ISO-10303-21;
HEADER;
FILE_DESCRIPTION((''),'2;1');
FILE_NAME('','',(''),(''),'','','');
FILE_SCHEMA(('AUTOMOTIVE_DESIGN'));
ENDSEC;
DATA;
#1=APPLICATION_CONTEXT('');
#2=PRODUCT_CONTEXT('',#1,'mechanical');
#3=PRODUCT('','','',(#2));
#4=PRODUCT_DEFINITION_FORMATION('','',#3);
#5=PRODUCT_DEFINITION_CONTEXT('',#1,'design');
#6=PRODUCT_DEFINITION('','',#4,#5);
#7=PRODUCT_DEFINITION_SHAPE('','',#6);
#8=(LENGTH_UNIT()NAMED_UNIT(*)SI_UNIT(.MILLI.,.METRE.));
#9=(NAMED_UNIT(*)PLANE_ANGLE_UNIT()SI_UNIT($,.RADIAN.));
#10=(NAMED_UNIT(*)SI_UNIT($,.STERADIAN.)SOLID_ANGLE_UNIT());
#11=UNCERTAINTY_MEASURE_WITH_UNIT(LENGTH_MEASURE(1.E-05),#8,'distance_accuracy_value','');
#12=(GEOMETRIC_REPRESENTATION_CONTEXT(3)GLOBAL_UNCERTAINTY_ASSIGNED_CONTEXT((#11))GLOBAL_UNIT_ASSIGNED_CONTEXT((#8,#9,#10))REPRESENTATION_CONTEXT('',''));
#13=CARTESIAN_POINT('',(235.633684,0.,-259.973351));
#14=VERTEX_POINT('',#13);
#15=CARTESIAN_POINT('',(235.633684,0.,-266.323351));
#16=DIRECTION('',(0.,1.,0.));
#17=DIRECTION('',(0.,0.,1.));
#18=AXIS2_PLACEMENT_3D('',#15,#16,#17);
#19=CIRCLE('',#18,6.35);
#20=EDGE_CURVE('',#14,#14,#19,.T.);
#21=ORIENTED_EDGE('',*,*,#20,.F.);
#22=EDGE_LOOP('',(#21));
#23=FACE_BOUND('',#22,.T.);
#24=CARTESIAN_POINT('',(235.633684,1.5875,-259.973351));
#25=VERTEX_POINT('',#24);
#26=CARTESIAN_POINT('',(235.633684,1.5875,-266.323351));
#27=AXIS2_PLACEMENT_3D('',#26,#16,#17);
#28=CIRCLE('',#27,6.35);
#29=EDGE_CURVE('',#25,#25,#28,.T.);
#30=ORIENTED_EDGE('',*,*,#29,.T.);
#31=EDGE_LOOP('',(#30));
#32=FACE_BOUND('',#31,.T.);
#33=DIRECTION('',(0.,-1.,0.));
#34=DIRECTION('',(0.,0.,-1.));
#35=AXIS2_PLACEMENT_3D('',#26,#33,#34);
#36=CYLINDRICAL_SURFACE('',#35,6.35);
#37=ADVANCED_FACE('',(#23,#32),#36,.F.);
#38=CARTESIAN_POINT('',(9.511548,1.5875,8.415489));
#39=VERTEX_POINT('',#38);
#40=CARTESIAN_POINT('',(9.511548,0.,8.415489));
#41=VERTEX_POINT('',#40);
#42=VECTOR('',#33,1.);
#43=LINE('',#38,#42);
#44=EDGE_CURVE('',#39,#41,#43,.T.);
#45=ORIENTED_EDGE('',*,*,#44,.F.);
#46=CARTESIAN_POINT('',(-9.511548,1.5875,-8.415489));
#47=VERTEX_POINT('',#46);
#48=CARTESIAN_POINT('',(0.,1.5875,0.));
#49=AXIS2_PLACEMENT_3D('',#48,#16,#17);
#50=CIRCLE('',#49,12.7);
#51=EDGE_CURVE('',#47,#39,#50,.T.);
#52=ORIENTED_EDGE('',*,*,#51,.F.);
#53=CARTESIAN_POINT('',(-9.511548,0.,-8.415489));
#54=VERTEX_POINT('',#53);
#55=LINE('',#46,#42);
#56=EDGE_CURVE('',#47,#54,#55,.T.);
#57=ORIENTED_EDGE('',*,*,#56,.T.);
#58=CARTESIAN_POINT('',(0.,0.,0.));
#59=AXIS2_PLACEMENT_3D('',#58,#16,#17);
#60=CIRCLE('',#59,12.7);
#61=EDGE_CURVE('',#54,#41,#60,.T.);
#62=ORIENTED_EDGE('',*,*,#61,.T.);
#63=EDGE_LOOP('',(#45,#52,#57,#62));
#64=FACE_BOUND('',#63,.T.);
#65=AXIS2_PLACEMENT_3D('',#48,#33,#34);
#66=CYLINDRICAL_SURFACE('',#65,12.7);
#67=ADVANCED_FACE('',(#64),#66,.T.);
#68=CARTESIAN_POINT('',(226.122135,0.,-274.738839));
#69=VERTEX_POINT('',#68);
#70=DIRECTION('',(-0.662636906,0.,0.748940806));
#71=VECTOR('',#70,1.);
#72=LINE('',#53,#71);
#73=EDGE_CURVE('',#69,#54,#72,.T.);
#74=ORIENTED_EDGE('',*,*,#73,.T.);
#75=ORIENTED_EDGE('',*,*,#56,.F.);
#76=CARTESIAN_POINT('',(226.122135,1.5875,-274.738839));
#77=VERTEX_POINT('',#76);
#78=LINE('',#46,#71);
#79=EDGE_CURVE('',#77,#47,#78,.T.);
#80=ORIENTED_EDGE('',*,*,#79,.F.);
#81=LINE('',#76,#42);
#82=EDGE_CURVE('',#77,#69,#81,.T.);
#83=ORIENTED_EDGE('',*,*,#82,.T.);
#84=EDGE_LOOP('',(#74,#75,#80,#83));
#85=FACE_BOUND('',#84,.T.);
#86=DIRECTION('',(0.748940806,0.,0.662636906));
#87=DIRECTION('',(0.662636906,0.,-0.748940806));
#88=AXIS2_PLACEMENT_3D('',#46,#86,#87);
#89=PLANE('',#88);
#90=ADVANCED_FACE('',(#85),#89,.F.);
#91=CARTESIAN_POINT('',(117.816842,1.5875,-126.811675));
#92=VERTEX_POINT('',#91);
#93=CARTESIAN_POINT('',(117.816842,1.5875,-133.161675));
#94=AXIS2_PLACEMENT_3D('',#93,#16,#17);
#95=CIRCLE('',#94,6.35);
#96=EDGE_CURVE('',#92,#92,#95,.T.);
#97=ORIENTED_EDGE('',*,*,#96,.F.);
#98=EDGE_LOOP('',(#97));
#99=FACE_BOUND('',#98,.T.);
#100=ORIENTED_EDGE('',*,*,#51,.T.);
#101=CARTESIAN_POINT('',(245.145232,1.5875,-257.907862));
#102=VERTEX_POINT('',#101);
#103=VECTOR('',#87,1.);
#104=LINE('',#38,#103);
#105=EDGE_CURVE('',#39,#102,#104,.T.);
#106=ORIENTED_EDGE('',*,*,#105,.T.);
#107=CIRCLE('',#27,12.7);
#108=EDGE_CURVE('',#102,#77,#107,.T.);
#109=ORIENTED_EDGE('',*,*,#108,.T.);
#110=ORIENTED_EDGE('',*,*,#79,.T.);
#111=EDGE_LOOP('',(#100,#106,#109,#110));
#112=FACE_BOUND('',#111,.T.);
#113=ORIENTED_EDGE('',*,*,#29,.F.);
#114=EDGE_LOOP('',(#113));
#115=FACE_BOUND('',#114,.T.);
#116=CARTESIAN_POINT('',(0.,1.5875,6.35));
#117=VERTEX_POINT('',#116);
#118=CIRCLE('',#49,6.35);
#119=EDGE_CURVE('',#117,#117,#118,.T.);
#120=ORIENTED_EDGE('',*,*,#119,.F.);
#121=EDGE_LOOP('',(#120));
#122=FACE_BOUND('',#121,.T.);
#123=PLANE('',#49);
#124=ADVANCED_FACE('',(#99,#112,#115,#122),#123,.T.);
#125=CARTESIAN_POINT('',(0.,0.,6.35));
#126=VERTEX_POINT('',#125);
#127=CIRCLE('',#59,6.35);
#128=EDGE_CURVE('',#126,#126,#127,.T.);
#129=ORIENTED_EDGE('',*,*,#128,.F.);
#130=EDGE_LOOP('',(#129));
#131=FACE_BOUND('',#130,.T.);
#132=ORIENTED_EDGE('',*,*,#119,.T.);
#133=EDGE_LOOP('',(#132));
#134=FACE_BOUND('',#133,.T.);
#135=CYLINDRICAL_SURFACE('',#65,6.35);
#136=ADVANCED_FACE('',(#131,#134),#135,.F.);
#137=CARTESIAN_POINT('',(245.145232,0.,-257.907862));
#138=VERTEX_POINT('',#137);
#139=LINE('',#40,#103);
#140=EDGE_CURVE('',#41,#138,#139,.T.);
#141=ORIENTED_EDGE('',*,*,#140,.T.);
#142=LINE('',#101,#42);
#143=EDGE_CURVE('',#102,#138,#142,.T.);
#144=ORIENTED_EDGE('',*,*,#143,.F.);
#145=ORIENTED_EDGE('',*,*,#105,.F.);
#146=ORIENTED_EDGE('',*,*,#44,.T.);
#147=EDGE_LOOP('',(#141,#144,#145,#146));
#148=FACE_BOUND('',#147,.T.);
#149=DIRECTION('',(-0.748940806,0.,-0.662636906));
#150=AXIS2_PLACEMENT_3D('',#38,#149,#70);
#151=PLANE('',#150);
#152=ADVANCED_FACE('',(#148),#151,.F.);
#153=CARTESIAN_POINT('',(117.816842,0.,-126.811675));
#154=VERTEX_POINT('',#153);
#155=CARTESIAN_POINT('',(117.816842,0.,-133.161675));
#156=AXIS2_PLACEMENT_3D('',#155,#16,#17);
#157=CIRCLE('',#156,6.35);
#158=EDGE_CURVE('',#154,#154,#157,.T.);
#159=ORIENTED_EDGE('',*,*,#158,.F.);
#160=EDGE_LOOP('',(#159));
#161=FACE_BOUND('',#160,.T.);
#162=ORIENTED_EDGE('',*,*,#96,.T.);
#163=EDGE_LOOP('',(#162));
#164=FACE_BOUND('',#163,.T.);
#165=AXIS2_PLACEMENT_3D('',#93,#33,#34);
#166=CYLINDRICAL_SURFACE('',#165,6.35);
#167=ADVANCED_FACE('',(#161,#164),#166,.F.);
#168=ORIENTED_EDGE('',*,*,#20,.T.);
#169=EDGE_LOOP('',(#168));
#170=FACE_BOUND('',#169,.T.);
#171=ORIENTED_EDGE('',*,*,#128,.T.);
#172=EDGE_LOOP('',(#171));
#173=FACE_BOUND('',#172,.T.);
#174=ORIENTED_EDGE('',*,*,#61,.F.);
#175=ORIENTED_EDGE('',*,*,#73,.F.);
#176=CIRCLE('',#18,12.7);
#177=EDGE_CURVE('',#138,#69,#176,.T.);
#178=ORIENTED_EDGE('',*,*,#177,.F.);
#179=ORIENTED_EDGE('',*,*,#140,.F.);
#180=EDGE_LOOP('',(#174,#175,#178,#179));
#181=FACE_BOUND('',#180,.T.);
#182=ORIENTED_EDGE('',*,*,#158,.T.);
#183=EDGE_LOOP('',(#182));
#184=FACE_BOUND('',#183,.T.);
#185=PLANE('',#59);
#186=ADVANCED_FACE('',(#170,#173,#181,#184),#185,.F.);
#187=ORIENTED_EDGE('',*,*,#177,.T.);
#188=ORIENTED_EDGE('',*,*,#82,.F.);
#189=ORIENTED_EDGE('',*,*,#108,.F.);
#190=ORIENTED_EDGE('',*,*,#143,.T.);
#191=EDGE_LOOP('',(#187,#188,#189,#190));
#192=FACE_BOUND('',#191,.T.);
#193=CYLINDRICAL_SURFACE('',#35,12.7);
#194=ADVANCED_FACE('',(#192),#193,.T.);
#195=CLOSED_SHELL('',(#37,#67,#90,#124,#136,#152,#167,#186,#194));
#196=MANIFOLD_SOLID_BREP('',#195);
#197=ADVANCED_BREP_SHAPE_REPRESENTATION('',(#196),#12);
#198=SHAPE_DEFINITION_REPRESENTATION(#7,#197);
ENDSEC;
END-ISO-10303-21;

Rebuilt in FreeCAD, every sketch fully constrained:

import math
import FreeCAD as App
import Part
import Sketcher
Q = App.Units.Quantity

doc = App.newDocument("Part")
params = doc.addObject("Spreadsheet::Sheet", "Params")
for row, (alias, value) in enumerate([
    ("sketch1_diameter", "0.5 in"),
    ("sketch1_radius", "0.5 in"),
    ("sketch1_length", "14 in"),
    ("pad1_length", "0.0625 in"),
], start=1):
    params.set(f"A{row}", alias)
    params.set(f"B{row}", "=" + value)
    params.setAlias(f"B{row}", alias)

body = doc.addObject("PartDesign::Body", "Body")

# Sketch on XZ plane
sketch1 = doc.addObject("Sketcher::SketchObject", "Sketch")
body.addObject(sketch1)
sketch1.AttachmentSupport = (doc.XZ_Plane, [""])
sketch1.MapMode = "FlatFace"
sketch1.addGeometry(Part.LineSegment(App.Vector(226.122135, -274.738839, 0), App.Vector(-9.511548, -8.415489, 0)), False)
sketch1.addGeometry(Part.ArcOfCircle(Part.Circle(App.Vector(0, 0, 0), App.Vector(0, 0, 1), 12.7), math.radians(41.50129), math.radians(221.50129)), False)
sketch1.addGeometry(Part.LineSegment(App.Vector(9.511548, 8.415489, 0), App.Vector(245.145232, -257.907862, 0)), False)
sketch1.addGeometry(Part.ArcOfCircle(Part.Circle(App.Vector(235.633684, -266.323351, 0), App.Vector(0, 0, 1), 12.7), math.radians(-138.49871), math.radians(41.50129)), False)
sketch1.addGeometry(Part.Circle(App.Vector(0, 0, 0), App.Vector(0, 0, 1), 6.35), False)
sketch1.addGeometry(Part.Circle(App.Vector(235.633684, -266.323351, 0), App.Vector(0, 0, 1), 6.35), False)
sketch1.addGeometry(Part.Circle(App.Vector(117.816842, -133.161675, 0), App.Vector(0, 0, 1), 6.35), False)
sketch1.addConstraint(Sketcher.Constraint("Tangent", 0, 2, 1, 2))
sketch1.addConstraint(Sketcher.Constraint("Tangent", 1, 1, 2, 1))
sketch1.addConstraint(Sketcher.Constraint("Tangent", 2, 2, 3, 2))
sketch1.addConstraint(Sketcher.Constraint("Tangent", 3, 1, 0, 1))
sketch1.addConstraint(Sketcher.Constraint("Coincident", 1, 3, -1, 1))
sketch1.addConstraint(Sketcher.Constraint("Coincident", 4, 3, -1, 1))
sketch1.addConstraint(Sketcher.Constraint("Coincident", 5, 3, 3, 3))
sketch1.addConstraint(Sketcher.Constraint("Equal", 1, 3))
sketch1.addConstraint(Sketcher.Constraint("Equal", 4, 5))
sketch1.addConstraint(Sketcher.Constraint("Equal", 5, 6))
sketch1.addConstraint(Sketcher.Constraint("Diameter", 4, Q("0.5 in")))
sketch1.addConstraint(Sketcher.Constraint("Radius", 1, Q("0.5 in")))
sketch1.addConstraint(Sketcher.Constraint("Distance", 0, Q("14 in")))
sketch1.addConstraint(Sketcher.Constraint("DistanceY", 3, 3, -1, 1, 266.323351))
sketch1.addConstraint(Sketcher.Constraint("DistanceX", -1, 1, 6, 3, 117.816842))
sketch1.addConstraint(Sketcher.Constraint("DistanceY", 6, 3, -1, 1, 133.161675))
sketch1.setExpression("Constraints[10]", "Params.sketch1_diameter")
sketch1.setExpression("Constraints[11]", "Params.sketch1_radius")
sketch1.setExpression("Constraints[12]", "Params.sketch1_length")
pad1 = doc.addObject("PartDesign::Pad", "Pad")
body.addObject(pad1)
pad1.Profile = sketch1
pad1.setExpression("Length", "Params.pad1_length")
pad1.Reversed = True

doc.recompute()
